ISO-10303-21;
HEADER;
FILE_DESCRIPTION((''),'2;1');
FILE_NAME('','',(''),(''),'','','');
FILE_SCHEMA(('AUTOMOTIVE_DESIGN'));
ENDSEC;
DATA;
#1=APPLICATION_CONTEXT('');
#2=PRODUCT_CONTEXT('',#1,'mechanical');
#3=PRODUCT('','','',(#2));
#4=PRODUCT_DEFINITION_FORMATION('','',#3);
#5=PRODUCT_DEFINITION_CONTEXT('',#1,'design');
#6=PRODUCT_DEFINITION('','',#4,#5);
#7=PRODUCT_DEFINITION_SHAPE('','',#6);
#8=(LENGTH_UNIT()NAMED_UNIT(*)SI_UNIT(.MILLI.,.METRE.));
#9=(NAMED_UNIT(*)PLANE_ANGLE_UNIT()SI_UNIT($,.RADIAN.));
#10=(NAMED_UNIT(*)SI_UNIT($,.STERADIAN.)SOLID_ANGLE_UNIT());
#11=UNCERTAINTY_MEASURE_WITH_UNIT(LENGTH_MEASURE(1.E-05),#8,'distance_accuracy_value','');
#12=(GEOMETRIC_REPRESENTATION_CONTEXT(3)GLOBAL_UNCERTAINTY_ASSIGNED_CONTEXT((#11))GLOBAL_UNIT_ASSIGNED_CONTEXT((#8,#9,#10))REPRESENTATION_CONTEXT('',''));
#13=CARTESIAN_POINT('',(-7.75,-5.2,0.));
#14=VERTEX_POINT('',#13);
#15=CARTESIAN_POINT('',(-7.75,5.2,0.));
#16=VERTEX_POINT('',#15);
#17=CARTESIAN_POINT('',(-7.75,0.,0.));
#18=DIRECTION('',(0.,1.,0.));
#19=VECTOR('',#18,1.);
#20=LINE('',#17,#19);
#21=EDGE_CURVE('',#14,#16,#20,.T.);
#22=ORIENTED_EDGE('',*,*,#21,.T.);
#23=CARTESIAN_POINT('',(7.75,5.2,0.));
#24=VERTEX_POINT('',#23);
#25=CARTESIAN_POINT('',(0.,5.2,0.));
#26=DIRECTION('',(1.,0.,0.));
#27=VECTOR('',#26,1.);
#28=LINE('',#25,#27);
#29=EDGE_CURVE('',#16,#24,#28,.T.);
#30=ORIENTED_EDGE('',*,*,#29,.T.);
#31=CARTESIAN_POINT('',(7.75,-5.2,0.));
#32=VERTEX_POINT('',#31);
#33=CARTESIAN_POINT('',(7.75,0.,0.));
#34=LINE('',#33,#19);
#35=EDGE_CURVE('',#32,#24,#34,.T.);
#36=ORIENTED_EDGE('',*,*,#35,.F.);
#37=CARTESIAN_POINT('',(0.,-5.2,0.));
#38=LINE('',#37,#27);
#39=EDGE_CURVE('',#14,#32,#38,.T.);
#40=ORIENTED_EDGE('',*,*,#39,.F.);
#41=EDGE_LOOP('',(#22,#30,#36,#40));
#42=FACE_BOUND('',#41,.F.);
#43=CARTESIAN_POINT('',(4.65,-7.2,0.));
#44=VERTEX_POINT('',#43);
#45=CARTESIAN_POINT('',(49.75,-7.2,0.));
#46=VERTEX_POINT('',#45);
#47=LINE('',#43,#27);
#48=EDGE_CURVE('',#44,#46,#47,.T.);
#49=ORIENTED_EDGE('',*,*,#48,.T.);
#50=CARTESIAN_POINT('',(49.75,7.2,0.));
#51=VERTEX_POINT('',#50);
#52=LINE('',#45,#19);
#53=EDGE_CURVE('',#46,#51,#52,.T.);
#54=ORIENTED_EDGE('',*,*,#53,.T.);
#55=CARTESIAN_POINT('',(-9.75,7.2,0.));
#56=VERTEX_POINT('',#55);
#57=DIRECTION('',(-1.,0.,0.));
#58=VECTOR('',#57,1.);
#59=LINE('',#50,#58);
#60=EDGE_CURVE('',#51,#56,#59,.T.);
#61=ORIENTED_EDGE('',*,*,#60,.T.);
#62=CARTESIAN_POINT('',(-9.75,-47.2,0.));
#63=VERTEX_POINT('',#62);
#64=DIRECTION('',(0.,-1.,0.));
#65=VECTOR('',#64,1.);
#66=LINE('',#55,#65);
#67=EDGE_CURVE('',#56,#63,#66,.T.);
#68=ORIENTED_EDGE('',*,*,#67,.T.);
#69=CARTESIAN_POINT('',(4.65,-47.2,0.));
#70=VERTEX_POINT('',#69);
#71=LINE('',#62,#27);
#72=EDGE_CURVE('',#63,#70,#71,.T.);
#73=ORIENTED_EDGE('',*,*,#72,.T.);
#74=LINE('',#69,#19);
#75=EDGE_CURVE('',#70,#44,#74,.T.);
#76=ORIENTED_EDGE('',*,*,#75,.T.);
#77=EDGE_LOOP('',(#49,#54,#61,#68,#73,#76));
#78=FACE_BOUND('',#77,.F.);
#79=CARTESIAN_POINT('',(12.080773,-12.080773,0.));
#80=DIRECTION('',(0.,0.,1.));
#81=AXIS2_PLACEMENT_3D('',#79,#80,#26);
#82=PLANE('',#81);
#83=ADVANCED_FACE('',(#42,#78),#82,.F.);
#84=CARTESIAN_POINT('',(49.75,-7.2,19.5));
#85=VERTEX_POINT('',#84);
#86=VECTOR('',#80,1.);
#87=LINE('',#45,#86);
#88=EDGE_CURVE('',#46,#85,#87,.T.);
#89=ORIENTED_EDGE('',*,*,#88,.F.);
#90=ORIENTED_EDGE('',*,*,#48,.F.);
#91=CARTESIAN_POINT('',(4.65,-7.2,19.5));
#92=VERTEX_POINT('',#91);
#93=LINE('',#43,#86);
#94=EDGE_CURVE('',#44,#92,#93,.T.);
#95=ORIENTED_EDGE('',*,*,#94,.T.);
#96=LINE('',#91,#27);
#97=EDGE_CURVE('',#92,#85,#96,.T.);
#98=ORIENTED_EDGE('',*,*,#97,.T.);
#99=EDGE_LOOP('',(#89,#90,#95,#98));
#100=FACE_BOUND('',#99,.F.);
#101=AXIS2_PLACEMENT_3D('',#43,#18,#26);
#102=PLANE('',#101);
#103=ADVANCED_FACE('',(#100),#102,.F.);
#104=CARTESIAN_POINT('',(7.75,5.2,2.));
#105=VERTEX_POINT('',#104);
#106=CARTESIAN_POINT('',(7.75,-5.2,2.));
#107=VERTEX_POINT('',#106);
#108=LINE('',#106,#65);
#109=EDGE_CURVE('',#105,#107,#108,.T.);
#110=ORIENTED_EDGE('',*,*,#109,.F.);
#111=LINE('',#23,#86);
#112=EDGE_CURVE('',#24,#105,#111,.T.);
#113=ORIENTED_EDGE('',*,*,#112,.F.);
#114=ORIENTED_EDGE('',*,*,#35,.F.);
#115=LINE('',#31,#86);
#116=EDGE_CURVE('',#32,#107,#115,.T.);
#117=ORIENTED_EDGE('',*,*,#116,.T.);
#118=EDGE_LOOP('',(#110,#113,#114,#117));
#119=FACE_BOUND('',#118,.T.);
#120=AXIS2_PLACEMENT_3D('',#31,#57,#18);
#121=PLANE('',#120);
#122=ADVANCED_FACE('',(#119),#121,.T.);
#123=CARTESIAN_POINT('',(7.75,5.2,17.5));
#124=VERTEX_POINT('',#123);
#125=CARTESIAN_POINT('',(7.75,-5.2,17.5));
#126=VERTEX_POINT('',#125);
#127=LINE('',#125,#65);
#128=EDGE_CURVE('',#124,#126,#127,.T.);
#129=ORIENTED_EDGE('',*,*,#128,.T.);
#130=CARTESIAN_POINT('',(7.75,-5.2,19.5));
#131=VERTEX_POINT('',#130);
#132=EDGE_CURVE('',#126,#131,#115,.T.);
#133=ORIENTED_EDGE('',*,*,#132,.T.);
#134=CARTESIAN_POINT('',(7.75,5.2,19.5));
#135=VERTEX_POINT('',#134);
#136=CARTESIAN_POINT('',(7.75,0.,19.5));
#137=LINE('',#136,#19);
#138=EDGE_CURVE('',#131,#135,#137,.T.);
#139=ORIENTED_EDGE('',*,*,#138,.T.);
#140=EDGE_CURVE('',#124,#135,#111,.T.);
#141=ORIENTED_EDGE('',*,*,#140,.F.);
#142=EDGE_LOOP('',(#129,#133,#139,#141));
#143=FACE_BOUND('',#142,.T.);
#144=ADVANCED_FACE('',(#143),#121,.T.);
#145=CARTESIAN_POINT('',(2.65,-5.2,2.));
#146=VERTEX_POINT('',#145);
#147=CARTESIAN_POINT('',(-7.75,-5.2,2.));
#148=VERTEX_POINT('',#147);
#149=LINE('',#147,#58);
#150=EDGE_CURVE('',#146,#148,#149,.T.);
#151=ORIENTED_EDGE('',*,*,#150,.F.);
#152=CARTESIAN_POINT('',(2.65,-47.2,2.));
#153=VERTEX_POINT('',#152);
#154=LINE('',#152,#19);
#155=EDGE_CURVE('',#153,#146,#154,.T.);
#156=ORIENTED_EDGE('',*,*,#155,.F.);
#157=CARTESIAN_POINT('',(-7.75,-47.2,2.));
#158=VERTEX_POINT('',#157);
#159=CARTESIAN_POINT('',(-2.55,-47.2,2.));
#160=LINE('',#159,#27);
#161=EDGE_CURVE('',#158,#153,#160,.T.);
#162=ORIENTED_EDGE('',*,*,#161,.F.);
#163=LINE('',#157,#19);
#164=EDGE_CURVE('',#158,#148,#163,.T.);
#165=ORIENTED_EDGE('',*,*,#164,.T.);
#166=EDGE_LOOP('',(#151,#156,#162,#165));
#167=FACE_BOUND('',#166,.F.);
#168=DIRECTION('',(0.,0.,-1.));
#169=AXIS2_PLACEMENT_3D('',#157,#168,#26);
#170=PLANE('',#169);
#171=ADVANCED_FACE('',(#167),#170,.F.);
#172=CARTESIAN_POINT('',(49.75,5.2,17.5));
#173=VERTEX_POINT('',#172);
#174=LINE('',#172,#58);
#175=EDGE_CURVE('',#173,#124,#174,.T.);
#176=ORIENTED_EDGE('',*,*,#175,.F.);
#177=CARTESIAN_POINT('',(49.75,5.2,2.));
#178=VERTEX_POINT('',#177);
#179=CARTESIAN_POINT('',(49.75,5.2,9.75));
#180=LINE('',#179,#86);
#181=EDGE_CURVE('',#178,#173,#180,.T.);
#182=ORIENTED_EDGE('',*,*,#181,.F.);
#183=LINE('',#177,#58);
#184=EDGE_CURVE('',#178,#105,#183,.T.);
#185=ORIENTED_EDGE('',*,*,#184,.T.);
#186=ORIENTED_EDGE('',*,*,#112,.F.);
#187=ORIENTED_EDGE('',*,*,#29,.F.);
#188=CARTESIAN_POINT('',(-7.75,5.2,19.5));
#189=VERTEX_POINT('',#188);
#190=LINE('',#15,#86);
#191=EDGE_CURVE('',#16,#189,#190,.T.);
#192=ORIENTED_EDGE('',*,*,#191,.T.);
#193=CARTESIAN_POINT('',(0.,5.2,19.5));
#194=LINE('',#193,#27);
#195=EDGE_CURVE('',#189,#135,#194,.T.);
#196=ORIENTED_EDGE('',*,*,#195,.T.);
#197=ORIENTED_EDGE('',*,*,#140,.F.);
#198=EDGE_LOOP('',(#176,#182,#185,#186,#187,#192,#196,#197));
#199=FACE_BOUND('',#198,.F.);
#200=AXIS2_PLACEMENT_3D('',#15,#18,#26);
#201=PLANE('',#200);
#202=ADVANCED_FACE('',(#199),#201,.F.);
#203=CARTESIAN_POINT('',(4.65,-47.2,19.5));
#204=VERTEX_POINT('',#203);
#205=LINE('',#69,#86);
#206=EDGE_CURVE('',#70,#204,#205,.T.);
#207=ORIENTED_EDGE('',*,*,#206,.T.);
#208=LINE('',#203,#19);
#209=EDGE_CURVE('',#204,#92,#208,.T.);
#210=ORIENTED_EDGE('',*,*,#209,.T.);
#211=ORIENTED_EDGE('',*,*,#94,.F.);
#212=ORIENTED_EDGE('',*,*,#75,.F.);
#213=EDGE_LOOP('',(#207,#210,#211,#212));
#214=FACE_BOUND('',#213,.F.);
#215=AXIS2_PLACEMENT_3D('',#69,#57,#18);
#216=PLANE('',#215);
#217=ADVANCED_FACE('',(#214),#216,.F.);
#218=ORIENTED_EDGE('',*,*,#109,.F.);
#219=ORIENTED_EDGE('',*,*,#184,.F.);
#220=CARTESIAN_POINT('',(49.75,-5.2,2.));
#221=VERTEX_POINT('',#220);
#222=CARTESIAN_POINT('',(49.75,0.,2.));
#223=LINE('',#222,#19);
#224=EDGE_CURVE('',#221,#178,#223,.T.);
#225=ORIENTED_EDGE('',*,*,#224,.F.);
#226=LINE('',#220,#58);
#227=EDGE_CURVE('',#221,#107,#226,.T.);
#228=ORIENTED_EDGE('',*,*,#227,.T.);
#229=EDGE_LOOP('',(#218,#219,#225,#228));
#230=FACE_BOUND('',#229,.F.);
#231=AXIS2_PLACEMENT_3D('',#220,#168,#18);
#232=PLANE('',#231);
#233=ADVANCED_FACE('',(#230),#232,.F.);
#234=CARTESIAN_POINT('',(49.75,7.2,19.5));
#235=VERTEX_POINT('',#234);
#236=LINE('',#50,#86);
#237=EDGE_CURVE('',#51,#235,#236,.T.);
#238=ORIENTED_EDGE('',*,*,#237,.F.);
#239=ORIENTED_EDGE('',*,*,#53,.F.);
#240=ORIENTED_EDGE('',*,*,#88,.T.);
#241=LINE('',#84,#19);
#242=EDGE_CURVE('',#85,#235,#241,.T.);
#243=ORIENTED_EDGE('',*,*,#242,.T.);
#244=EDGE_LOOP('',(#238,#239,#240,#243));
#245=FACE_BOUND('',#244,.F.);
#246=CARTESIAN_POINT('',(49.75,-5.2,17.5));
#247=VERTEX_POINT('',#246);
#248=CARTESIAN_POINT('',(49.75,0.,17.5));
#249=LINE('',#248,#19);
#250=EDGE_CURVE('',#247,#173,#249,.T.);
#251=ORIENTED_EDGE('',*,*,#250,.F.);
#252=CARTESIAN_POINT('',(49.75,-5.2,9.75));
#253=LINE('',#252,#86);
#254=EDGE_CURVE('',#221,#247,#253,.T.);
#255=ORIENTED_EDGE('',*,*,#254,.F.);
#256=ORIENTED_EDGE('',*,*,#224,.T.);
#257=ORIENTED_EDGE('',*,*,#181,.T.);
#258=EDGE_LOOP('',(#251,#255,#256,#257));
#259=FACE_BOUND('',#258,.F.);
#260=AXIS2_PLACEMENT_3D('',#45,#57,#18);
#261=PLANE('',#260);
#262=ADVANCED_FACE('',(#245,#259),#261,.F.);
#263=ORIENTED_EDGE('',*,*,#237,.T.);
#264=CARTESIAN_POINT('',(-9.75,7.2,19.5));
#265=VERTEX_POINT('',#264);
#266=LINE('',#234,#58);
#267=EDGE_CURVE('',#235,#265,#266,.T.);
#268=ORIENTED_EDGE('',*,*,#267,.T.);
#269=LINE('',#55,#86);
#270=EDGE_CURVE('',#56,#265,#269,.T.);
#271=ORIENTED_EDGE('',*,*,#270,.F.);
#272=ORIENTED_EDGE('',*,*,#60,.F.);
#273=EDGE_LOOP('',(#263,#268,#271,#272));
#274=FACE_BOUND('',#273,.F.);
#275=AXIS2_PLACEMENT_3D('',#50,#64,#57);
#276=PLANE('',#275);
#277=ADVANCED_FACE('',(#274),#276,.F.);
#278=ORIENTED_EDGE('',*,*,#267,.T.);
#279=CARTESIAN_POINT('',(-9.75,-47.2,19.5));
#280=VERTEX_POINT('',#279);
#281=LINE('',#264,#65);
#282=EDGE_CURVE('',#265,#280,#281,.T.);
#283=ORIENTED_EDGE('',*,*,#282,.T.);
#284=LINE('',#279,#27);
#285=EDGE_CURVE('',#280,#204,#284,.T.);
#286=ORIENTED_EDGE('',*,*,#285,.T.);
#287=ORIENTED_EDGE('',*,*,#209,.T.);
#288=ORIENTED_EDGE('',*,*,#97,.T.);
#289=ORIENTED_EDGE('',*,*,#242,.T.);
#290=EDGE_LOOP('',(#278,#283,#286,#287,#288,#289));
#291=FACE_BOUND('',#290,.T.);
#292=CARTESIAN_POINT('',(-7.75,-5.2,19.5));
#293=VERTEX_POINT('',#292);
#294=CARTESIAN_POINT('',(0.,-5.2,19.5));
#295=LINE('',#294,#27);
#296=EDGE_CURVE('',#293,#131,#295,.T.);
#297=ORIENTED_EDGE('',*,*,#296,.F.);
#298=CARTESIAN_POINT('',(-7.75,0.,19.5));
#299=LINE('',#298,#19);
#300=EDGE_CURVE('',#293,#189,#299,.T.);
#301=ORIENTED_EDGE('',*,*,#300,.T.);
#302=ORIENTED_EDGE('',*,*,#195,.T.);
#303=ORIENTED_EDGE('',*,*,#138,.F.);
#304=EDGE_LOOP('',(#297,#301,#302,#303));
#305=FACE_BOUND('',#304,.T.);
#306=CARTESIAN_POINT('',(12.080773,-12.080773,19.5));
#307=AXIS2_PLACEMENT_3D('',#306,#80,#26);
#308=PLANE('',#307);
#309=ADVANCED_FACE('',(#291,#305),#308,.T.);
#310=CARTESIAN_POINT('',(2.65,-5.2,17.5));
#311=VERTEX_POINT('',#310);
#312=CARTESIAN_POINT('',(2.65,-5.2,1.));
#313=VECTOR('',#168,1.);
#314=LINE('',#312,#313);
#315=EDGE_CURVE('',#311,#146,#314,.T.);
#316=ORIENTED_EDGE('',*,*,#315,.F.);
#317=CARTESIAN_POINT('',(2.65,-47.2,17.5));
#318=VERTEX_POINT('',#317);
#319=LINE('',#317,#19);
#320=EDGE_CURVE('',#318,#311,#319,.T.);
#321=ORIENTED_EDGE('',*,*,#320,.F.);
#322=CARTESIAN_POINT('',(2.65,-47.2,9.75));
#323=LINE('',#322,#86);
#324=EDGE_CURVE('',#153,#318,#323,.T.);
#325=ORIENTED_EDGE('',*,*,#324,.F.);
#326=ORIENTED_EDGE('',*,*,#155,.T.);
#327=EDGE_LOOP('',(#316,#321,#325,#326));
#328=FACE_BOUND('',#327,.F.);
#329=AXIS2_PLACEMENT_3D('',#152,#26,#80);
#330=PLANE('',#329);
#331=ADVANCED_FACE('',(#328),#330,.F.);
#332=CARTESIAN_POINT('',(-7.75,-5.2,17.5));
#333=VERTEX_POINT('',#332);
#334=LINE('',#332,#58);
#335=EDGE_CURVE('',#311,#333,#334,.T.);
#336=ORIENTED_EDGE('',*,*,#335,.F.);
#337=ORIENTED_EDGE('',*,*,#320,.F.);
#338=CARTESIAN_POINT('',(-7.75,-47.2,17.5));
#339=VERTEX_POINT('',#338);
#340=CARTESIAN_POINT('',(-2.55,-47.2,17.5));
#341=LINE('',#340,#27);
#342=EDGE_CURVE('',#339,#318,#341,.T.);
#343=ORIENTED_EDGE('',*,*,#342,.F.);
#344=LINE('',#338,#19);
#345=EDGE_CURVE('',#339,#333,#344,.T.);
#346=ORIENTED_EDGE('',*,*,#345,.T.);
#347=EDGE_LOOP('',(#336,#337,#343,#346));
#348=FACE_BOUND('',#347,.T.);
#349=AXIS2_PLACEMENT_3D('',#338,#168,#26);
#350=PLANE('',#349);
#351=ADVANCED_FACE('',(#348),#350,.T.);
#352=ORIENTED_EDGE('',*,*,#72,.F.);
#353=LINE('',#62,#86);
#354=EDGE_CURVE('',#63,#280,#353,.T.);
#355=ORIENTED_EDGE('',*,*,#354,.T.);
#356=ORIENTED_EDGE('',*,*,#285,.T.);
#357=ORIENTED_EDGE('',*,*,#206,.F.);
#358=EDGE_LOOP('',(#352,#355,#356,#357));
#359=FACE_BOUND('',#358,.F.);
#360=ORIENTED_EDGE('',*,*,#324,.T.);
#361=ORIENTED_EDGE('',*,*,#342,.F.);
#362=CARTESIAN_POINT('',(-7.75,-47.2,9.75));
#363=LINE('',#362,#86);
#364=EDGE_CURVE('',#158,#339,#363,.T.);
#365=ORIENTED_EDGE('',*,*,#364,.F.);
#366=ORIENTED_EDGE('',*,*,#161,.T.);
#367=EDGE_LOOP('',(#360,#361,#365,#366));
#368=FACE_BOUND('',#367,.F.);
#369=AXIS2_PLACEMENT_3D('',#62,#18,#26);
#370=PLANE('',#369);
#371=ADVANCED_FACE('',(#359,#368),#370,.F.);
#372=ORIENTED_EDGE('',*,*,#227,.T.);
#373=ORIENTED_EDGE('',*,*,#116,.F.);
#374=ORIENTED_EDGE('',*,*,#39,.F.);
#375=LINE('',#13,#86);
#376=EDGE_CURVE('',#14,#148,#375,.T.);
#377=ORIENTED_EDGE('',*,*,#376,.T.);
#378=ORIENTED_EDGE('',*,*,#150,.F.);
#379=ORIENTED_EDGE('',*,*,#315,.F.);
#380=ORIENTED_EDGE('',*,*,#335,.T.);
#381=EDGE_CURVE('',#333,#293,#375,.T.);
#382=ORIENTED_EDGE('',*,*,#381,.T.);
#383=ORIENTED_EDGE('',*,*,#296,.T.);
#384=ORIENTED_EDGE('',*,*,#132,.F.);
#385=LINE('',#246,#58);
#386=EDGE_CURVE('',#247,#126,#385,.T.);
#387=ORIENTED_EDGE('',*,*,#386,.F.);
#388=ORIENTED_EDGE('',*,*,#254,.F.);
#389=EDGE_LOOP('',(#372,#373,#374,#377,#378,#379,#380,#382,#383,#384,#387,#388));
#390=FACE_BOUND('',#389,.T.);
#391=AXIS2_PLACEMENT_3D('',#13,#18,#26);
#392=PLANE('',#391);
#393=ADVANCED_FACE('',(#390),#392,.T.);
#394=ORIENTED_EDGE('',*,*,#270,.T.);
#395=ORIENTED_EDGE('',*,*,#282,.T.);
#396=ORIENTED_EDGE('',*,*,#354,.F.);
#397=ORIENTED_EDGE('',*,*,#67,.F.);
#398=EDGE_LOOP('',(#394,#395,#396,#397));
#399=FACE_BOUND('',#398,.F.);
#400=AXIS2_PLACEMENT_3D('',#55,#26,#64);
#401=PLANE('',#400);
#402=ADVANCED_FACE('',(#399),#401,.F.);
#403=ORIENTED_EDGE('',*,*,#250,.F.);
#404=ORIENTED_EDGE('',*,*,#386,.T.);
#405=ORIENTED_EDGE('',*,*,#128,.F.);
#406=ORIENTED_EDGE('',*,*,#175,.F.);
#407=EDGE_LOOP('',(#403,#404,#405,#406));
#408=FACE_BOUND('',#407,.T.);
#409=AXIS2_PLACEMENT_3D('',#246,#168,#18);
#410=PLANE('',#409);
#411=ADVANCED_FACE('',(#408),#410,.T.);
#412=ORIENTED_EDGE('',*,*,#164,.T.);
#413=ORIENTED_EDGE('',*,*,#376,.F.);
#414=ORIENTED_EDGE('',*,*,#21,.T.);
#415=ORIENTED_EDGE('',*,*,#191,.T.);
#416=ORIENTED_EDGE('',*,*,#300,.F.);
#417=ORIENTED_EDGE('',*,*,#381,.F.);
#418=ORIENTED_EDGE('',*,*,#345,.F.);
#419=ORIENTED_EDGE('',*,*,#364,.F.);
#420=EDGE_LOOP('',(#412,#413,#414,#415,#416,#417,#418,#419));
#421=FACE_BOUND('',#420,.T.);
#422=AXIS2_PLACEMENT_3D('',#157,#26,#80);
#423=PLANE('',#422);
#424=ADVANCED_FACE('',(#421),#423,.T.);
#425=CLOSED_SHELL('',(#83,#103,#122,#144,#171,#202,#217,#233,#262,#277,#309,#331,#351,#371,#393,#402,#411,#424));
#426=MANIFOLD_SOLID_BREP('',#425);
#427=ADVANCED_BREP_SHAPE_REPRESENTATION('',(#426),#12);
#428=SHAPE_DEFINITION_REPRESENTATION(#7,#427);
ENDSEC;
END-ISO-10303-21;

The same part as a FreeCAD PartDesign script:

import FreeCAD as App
import Part
import Sketcher
Q = App.Units.Quantity


def add_polygon(sketch, points):
    """Adds a closed chain of lines whose ends are joined by coincident constraints."""
    first, n = sketch.GeometryCount, len(points)
    for a, b in zip(points, points[1:] + points[:1]):
        sketch.addGeometry(Part.LineSegment(App.Vector(*a, 0), App.Vector(*b, 0)), False)
    for i in range(n):
        sketch.addConstraint(Sketcher.Constraint("Coincident", first + i, 2, first + (i + 1) % n, 1))

doc = App.newDocument("Part")
body = doc.addObject("PartDesign::Body", "Body")

sketch1 = body.newObject("Sketcher::SketchObject", "Sketch")
sketch1.AttachmentSupport = (doc.getObject("XY_Plane"), [""])
sketch1.MapMode = "FlatFace"
add_polygon(sketch1, [(-9.75, 7.2), (-9.75, -47.2), (4.65, -47.2), (4.65, -7.2), (49.75, -7.2), (49.75, 7.2)])
add_polygon(sketch1, [(7.75, -5.2), (-7.75, -5.2), (-7.75, 5.2), (7.75, 5.2)])
sketch1.addConstraint([
    Sketcher.Constraint("Vertical", 0),
    Sketcher.Constraint("Horizontal", 1),
    Sketcher.Constraint("Vertical", 2),
    Sketcher.Constraint("Horizontal", 3),
    Sketcher.Constraint("Vertical", 4),
    Sketcher.Constraint("Horizontal", 5),
    Sketcher.Constraint("Horizontal", 6),
    Sketcher.Constraint("Vertical", 7),
    Sketcher.Constraint("Horizontal", 8),
    Sketcher.Constraint("Vertical", 9),
    Sketcher.Constraint("Symmetric", 6, 2, 8, 2, -1, 1),
    Sketcher.Constraint("Equal", 1, 4),
    Sketcher.Constraint("DistanceY", 2, 1, 2, 2, Q("40 mm")),
    Sketcher.Constraint("DistanceX", 1, 1, 1, 2, Q("14.4 mm")),
    Sketcher.Constraint("DistanceX", 3, 1, 3, 2, Q("45.1 mm")),
    Sketcher.Constraint("DistanceX", 6, 2, 6, 1, Q("15.5 mm")),
    Sketcher.Constraint("DistanceY", 7, 1, 7, 2, Q("10.4 mm")),
    Sketcher.Constraint("DistanceY", 2, 2, 6, 2, Q("2 mm")),
    Sketcher.Constraint("DistanceX", 5, 2, 6, 2, Q("2 mm")),
])
pad1 = body.newObject("PartDesign::Pad", "Pad")
pad1.Profile = sketch1
pad1.Length = 19.5

sketch2 = body.newObject("Sketcher::SketchObject", "Sketch001")
sketch2.AttachmentSupport = (doc.getObject("XZ_Plane"), [""])
sketch2.MapMode = "FlatFace"
sketch2.AttachmentOffset = App.Placement(App.Vector(0, 0, 47.2), App.Rotation())
add_polygon(sketch2, [(-7.75, 17.5), (-7.75, 2), (2.65, 2), (2.65, 17.5)])
sketch2.addConstraint([
    Sketcher.Constraint("Vertical", 0),
    Sketcher.Constraint("Horizontal", 1),
    Sketcher.Constraint("Vertical", 2),
    Sketcher.Constraint("Horizontal", 3),
    Sketcher.Constraint("DistanceX", 1, 1, 1, 2, Q("10.4 mm")),
    Sketcher.Constraint("DistanceY", 0, 2, 0, 1, Q("15.5 mm")),
    Sketcher.Constraint("DistanceY", -1, 1, 0, 2, Q("2 mm")),
    Sketcher.Constraint("DistanceX", 0, 2, -1, 1, Q("7.75 mm")),
])
pocket1 = body.newObject("PartDesign::Pocket", "Pocket")
pocket1.Profile = sketch2
pocket1.Length = 45

sketch3 = body.newObject("Sketcher::SketchObject", "Sketch002")
sketch3.AttachmentSupport = (doc.getObject("YZ_Plane"), [""])
sketch3.MapMode = "FlatFace"
sketch3.AttachmentOffset = App.Placement(App.Vector(0, 0, 49.75), App.Rotation())
add_polygon(sketch3, [(-5.2, 17.5), (-5.2, 2), (5.2, 2), (5.2, 17.5)])
sketch3.addConstraint([
    Sketcher.Constraint("Vertical", 0),
    Sketcher.Constraint("Horizontal", 1),
    Sketcher.Constraint("Vertical", 2),
    Sketcher.Constraint("Horizontal", 3),
    Sketcher.Constraint("DistanceX", 1, 1, 1, 2, Q("10.4 mm")),
    Sketcher.Constraint("DistanceY", 0, 2, 0, 1, Q("15.5 mm")),
    Sketcher.Constraint("DistanceY", -1, 1, 0, 2, Q("2 mm")),
    Sketcher.Constraint("DistanceX", 0, 2, -1, 1, Q("5.2 mm")),
])
pocket2 = body.newObject("PartDesign::Pocket", "Pocket001")
pocket2.Profile = sketch3
pocket2.Length = 45

doc.recompute()
